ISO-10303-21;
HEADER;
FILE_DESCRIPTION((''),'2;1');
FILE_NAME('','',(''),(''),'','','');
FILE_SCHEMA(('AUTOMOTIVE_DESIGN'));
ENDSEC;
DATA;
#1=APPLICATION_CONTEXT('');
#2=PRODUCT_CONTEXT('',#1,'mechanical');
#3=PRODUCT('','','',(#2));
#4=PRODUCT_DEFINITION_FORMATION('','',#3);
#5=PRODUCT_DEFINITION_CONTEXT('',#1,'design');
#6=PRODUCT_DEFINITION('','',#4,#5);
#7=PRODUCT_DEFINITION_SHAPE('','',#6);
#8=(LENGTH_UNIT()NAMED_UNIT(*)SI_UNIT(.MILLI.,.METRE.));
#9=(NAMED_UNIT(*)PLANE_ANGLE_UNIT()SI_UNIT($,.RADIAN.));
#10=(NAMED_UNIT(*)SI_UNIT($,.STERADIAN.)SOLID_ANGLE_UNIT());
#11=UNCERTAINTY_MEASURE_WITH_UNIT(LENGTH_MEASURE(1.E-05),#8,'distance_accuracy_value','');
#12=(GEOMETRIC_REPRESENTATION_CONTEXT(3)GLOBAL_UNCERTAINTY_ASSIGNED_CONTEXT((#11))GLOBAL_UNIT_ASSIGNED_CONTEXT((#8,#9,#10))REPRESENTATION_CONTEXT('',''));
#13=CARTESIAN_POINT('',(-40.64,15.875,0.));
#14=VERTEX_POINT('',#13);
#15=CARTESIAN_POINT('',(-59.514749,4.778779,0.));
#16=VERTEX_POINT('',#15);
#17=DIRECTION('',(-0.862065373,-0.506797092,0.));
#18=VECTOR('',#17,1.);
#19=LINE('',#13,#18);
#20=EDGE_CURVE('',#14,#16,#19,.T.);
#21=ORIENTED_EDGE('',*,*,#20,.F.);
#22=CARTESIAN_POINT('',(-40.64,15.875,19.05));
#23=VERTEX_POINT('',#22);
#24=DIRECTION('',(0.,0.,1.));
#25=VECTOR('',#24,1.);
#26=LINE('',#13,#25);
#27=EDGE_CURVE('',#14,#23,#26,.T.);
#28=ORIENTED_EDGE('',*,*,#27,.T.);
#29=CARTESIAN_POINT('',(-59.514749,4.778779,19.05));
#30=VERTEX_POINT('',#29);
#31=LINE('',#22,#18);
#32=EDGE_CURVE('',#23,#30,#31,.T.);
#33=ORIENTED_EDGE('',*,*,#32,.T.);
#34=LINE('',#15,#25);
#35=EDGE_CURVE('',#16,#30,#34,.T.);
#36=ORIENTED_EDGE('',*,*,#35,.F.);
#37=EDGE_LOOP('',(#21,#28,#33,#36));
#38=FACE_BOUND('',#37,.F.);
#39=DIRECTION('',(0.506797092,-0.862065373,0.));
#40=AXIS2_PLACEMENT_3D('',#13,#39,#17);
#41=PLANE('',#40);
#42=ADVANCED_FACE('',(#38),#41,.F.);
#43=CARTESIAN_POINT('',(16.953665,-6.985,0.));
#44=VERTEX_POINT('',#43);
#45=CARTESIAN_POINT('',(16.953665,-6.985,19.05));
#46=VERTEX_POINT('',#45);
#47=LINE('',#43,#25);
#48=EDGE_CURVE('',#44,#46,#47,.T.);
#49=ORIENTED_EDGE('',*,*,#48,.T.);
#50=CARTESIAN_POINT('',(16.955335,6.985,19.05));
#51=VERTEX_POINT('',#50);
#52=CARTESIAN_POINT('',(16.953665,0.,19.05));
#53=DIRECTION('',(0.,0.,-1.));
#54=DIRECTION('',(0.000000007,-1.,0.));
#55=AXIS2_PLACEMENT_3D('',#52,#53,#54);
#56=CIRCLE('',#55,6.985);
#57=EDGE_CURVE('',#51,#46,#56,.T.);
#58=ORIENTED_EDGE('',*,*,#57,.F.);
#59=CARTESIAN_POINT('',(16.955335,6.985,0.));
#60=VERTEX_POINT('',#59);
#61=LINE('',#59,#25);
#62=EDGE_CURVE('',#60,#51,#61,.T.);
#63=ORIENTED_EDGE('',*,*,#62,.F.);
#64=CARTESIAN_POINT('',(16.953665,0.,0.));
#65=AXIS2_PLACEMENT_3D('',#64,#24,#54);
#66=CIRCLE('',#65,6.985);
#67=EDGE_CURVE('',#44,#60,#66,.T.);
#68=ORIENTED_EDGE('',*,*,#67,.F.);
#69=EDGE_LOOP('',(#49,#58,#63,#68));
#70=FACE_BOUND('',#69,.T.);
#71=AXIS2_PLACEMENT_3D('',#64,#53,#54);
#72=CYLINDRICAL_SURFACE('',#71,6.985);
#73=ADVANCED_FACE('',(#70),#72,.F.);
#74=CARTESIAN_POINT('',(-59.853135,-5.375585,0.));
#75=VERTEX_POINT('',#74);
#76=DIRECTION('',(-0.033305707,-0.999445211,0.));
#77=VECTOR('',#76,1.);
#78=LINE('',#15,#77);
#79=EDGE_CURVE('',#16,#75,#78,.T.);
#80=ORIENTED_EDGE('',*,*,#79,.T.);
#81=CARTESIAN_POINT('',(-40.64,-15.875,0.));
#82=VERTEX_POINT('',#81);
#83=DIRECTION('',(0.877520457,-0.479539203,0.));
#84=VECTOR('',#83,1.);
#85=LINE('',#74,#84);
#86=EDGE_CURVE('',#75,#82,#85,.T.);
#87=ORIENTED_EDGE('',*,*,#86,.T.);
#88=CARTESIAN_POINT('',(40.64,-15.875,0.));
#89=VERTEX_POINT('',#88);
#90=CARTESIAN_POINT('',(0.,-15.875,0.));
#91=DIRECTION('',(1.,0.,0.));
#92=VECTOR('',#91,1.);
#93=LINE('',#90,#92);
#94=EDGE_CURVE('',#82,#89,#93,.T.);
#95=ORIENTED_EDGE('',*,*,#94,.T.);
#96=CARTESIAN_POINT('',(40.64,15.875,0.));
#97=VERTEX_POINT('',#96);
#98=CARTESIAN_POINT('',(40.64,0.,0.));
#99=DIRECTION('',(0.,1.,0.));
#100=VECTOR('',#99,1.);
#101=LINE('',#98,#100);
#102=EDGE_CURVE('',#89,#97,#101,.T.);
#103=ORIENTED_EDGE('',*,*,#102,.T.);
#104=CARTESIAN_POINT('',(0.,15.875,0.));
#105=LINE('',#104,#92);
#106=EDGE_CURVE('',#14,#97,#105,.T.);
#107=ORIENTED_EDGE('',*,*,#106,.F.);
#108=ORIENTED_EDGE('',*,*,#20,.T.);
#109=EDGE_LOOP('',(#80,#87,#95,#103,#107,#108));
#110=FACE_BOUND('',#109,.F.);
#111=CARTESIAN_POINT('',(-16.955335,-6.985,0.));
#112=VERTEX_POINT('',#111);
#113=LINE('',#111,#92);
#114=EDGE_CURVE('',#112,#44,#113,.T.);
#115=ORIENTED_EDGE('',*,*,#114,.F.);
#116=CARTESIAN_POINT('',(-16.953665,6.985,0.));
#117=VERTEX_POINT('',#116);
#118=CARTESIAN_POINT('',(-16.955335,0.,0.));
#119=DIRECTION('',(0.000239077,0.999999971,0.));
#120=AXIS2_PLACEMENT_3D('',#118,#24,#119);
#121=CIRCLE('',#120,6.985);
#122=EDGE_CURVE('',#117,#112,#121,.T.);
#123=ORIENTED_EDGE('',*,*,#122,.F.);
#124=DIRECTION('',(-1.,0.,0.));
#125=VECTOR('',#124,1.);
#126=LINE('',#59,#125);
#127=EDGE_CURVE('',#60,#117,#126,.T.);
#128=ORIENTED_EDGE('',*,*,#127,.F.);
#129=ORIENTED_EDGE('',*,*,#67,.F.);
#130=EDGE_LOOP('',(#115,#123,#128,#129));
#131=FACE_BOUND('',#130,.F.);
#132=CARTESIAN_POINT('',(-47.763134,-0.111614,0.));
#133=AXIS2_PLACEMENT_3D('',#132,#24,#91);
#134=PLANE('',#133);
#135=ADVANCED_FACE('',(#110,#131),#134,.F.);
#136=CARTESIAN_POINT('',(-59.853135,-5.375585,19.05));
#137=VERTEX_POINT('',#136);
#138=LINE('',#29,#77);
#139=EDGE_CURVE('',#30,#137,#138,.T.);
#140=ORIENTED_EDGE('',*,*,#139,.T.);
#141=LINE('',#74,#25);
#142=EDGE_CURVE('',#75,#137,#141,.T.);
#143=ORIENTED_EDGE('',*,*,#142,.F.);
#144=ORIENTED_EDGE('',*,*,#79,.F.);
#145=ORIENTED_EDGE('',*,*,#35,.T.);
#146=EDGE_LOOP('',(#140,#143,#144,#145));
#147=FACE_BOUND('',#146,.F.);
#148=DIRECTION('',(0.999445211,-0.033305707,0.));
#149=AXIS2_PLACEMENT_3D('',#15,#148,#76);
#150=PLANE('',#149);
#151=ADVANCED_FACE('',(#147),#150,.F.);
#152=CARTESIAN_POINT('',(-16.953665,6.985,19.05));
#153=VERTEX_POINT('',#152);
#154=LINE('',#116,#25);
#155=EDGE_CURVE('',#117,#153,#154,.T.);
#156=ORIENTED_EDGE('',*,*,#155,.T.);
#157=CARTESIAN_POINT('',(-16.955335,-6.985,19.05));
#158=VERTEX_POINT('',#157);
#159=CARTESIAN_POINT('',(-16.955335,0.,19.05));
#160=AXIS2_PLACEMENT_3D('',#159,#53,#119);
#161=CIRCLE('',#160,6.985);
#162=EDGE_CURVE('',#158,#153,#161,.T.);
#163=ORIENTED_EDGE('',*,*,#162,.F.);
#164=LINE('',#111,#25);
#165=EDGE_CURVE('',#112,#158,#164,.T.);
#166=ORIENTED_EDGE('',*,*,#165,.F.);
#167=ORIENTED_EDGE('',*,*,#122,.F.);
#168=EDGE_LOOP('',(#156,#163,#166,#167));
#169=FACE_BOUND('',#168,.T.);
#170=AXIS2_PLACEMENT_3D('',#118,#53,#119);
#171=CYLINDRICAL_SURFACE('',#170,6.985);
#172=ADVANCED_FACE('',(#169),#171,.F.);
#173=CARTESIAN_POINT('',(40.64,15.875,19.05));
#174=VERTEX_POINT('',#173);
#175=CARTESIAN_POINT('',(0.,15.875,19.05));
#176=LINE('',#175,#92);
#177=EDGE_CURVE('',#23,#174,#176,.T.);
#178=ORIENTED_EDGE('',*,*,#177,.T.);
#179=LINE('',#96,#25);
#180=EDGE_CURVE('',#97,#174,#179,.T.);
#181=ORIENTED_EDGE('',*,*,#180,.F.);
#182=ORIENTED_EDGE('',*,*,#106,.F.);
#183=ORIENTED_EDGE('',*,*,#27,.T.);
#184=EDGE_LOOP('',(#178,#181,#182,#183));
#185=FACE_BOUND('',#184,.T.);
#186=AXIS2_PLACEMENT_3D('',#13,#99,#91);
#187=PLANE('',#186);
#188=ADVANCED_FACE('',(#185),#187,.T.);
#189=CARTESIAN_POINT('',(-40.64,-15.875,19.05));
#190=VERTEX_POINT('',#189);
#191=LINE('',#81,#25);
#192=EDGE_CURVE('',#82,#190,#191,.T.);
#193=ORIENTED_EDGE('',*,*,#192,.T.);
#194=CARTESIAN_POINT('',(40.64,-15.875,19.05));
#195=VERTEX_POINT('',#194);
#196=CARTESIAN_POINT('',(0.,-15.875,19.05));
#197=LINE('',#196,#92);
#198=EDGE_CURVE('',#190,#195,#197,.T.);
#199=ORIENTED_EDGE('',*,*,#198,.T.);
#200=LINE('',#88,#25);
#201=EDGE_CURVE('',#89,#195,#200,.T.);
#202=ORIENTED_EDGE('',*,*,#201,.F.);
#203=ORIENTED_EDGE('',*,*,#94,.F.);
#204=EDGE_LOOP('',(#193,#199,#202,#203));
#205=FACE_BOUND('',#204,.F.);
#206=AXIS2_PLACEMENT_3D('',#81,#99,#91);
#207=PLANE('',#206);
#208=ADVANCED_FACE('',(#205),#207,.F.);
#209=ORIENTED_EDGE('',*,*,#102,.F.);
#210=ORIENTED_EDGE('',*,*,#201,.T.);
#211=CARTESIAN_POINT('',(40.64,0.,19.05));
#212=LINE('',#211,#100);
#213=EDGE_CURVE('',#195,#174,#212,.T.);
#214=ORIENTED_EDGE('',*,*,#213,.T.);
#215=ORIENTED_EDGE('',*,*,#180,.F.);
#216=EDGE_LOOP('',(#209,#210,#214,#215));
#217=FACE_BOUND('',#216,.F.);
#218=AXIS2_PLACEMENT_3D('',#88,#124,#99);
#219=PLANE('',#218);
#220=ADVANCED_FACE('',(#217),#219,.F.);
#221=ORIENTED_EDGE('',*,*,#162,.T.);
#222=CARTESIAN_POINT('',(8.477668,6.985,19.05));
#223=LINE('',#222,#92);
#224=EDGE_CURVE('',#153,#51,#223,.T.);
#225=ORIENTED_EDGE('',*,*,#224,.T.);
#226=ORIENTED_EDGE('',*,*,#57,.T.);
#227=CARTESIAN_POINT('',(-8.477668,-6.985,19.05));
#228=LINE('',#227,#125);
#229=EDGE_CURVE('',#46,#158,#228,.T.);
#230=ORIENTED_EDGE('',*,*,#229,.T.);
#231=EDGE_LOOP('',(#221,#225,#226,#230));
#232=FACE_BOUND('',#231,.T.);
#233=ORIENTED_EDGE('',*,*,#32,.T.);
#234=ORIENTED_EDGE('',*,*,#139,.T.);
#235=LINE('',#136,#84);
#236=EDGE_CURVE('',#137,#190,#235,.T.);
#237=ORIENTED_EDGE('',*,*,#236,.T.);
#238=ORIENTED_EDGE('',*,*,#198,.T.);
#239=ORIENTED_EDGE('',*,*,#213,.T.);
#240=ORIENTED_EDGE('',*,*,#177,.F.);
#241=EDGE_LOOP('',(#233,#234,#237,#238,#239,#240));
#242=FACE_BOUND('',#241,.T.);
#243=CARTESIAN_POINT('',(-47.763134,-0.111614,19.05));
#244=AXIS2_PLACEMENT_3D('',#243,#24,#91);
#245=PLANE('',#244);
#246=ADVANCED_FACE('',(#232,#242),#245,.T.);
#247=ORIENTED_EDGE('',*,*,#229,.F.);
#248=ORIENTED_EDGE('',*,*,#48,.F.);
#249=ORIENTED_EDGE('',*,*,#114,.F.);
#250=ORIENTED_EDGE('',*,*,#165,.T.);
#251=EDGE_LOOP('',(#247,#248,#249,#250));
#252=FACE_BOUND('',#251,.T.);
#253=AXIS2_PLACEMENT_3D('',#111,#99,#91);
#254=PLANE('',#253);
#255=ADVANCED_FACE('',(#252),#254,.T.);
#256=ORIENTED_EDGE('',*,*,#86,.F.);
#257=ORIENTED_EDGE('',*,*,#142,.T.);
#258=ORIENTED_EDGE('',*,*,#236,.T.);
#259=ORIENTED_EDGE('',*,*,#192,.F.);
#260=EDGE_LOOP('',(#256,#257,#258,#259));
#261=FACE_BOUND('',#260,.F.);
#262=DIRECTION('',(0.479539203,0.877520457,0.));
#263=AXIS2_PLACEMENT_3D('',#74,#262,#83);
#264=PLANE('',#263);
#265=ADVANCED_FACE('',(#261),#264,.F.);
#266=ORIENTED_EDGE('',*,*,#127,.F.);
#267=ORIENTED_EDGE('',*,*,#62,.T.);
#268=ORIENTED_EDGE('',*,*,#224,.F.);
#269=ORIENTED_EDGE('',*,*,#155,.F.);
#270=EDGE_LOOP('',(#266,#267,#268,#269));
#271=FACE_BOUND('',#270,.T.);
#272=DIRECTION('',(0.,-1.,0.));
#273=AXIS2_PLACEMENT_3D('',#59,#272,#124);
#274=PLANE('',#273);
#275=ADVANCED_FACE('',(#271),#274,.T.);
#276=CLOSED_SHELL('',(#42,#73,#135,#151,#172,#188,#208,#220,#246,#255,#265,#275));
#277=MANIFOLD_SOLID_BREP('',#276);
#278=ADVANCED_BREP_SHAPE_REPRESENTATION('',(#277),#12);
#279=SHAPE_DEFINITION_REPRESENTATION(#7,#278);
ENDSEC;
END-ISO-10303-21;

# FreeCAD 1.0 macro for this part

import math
import FreeCAD as App
import Part
import Sketcher
Q = App.Units.Quantity

doc = App.newDocument("Part")
body = doc.addObject("PartDesign::Body", "Body")

# Sketch on XY plane
sketch1 = body.newObject("Sketcher::SketchObject", "Sketch")
sketch1.AttachmentSupport = (doc.getObject("XY_Plane"), [""])
sketch1.MapMode = "FlatFace"
sketch1.addGeometry([
    Part.LineSegment(App.Vector(-41, 16, 0), App.Vector(-41, -16, 0)),
    Part.LineSegment(App.Vector(-41, -16, 0), App.Vector(41, -16, 0)),
    Part.LineSegment(App.Vector(41, -16, 0), App.Vector(41, 16, 0)),
    Part.LineSegment(App.Vector(41, 16, 0), App.Vector(-41, 16, 0)),
], False)
sketch1.addConstraint([
    Sketcher.Constraint("Coincident", 0, 2, 1, 1),
    Sketcher.Constraint("Coincident", 1, 2, 2, 1),
    Sketcher.Constraint("Coincident", 2, 2, 3, 1),
    Sketcher.Constraint("Coincident", 3, 2, 0, 1),
    Sketcher.Constraint("Vertical", 0),
    Sketcher.Constraint("Horizontal", 1),
    Sketcher.Constraint("Vertical", 2),
    Sketcher.Constraint("Horizontal", 3),
    Sketcher.Constraint("Symmetric", 0, 2, 2, 2, -1, 1),
    Sketcher.Constraint("DistanceX", 1, 1, 1, 2, Q("3.2 in")),
    Sketcher.Constraint("DistanceY", 0, 2, 0, 1, Q("1.25 in")),
])
pad1 = body.newObject("PartDesign::Pad", "Pad")
pad1.Profile = sketch1
pad1.Length = Q("0.75 in")

# Sketch on XY plane
sketch2 = body.newObject("Sketcher::SketchObject", "Sketch001")
sketch2.AttachmentSupport = (doc.getObject("XY_Plane"), [""])
sketch2.MapMode = "FlatFace"
sketch2.addGeometry([
    Part.ArcOfCircle(Part.Circle(App.Vector(-17, 0, 0), App.Vector(0, 0, 1), 7), math.radians(90), math.radians(270)),
    Part.LineSegment(App.Vector(-17, -7, 0), App.Vector(17, -7, 0)),
    Part.ArcOfCircle(Part.Circle(App.Vector(17, 0, 0), App.Vector(0, 0, 1), 7), math.radians(-90), math.radians(90)),
    Part.LineSegment(App.Vector(17, 7, 0), App.Vector(-17, 7, 0)),
], False)
sketch2.addConstraint([
    Sketcher.Constraint("Tangent", 0, 2, 1, 1),
    Sketcher.Constraint("Tangent", 1, 2, 2, 1),
    Sketcher.Constraint("Coincident", 2, 2, 3, 1),
    Sketcher.Constraint("Coincident", 3, 2, 0, 1),
    Sketcher.Constraint("Horizontal", 1),
    Sketcher.Constraint("Horizontal", 3),
    Sketcher.Constraint("Symmetric", 0, 2, 2, 2, -1, 1),
    Sketcher.Constraint("Equal", 1, 3),
    Sketcher.Constraint("Radius", 0, Q("0.275 in")),
    Sketcher.Constraint("DistanceX", 1, 1, 1, 2, Q("1.335 in")),
    Sketcher.Constraint("DistanceX", 2, 3, 2, 2, Q("0.00167 mm")),
])
pocket1 = body.newObject("PartDesign::Pocket", "Pocket")
pocket1.Profile = sketch2
pocket1.Type = "ThroughAll"
pocket1.Midplane = True

# Sketch on XY plane
sketch3 = body.newObject("Sketcher::SketchObject", "Sketch002")
sketch3.AttachmentSupport = (doc.getObject("XY_Plane"), [""])
sketch3.MapMode = "FlatFace"
sketch3.addGeometry([
    Part.LineSegment(App.Vector(-41, -16, 0), App.Vector(-41, 16, 0)),
    Part.LineSegment(App.Vector(-41, 16, 0), App.Vector(-60, 5, 0)),
    Part.LineSegment(App.Vector(-60, 5, 0), App.Vector(-60, -5, 0)),
    Part.LineSegment(App.Vector(-60, -5, 0), App.Vector(-41, -16, 0)),
], False)
sketch3.addConstraint([
    Sketcher.Constraint("Coincident", 0, 2, 1, 1),
    Sketcher.Constraint("Coincident", 1, 2, 2, 1),
    Sketcher.Constraint("Coincident", 2, 2, 3, 1),
    Sketcher.Constraint("Coincident", 3, 2, 0, 1),
    Sketcher.Constraint("Vertical", 0),
    Sketcher.Constraint("Equal", 1, 3),
    Sketcher.Constraint("Distance", 2, Q("0.4 in")),
    Sketcher.Constraint("DistanceY", 0, 1, 0, 2, Q("1.25 in")),
    Sketcher.Constraint("DistanceX", 0, 2, -1, 1, Q("1.6 in")),
    Sketcher.Constraint("Distance", 1, Q("0.862 in")),
    Sketcher.Constraint("DistanceY", -1, 1, 0, 2, Q("0.625 in")),
    Sketcher.Constraint("DistanceX", 1, 2, -1, 1, Q("59.514749 mm")),
])
pad2 = body.newObject("PartDesign::Pad", "Pad001")
pad2.Profile = sketch3
pad2.Length = Q("0.75 in")

doc.recompute()
